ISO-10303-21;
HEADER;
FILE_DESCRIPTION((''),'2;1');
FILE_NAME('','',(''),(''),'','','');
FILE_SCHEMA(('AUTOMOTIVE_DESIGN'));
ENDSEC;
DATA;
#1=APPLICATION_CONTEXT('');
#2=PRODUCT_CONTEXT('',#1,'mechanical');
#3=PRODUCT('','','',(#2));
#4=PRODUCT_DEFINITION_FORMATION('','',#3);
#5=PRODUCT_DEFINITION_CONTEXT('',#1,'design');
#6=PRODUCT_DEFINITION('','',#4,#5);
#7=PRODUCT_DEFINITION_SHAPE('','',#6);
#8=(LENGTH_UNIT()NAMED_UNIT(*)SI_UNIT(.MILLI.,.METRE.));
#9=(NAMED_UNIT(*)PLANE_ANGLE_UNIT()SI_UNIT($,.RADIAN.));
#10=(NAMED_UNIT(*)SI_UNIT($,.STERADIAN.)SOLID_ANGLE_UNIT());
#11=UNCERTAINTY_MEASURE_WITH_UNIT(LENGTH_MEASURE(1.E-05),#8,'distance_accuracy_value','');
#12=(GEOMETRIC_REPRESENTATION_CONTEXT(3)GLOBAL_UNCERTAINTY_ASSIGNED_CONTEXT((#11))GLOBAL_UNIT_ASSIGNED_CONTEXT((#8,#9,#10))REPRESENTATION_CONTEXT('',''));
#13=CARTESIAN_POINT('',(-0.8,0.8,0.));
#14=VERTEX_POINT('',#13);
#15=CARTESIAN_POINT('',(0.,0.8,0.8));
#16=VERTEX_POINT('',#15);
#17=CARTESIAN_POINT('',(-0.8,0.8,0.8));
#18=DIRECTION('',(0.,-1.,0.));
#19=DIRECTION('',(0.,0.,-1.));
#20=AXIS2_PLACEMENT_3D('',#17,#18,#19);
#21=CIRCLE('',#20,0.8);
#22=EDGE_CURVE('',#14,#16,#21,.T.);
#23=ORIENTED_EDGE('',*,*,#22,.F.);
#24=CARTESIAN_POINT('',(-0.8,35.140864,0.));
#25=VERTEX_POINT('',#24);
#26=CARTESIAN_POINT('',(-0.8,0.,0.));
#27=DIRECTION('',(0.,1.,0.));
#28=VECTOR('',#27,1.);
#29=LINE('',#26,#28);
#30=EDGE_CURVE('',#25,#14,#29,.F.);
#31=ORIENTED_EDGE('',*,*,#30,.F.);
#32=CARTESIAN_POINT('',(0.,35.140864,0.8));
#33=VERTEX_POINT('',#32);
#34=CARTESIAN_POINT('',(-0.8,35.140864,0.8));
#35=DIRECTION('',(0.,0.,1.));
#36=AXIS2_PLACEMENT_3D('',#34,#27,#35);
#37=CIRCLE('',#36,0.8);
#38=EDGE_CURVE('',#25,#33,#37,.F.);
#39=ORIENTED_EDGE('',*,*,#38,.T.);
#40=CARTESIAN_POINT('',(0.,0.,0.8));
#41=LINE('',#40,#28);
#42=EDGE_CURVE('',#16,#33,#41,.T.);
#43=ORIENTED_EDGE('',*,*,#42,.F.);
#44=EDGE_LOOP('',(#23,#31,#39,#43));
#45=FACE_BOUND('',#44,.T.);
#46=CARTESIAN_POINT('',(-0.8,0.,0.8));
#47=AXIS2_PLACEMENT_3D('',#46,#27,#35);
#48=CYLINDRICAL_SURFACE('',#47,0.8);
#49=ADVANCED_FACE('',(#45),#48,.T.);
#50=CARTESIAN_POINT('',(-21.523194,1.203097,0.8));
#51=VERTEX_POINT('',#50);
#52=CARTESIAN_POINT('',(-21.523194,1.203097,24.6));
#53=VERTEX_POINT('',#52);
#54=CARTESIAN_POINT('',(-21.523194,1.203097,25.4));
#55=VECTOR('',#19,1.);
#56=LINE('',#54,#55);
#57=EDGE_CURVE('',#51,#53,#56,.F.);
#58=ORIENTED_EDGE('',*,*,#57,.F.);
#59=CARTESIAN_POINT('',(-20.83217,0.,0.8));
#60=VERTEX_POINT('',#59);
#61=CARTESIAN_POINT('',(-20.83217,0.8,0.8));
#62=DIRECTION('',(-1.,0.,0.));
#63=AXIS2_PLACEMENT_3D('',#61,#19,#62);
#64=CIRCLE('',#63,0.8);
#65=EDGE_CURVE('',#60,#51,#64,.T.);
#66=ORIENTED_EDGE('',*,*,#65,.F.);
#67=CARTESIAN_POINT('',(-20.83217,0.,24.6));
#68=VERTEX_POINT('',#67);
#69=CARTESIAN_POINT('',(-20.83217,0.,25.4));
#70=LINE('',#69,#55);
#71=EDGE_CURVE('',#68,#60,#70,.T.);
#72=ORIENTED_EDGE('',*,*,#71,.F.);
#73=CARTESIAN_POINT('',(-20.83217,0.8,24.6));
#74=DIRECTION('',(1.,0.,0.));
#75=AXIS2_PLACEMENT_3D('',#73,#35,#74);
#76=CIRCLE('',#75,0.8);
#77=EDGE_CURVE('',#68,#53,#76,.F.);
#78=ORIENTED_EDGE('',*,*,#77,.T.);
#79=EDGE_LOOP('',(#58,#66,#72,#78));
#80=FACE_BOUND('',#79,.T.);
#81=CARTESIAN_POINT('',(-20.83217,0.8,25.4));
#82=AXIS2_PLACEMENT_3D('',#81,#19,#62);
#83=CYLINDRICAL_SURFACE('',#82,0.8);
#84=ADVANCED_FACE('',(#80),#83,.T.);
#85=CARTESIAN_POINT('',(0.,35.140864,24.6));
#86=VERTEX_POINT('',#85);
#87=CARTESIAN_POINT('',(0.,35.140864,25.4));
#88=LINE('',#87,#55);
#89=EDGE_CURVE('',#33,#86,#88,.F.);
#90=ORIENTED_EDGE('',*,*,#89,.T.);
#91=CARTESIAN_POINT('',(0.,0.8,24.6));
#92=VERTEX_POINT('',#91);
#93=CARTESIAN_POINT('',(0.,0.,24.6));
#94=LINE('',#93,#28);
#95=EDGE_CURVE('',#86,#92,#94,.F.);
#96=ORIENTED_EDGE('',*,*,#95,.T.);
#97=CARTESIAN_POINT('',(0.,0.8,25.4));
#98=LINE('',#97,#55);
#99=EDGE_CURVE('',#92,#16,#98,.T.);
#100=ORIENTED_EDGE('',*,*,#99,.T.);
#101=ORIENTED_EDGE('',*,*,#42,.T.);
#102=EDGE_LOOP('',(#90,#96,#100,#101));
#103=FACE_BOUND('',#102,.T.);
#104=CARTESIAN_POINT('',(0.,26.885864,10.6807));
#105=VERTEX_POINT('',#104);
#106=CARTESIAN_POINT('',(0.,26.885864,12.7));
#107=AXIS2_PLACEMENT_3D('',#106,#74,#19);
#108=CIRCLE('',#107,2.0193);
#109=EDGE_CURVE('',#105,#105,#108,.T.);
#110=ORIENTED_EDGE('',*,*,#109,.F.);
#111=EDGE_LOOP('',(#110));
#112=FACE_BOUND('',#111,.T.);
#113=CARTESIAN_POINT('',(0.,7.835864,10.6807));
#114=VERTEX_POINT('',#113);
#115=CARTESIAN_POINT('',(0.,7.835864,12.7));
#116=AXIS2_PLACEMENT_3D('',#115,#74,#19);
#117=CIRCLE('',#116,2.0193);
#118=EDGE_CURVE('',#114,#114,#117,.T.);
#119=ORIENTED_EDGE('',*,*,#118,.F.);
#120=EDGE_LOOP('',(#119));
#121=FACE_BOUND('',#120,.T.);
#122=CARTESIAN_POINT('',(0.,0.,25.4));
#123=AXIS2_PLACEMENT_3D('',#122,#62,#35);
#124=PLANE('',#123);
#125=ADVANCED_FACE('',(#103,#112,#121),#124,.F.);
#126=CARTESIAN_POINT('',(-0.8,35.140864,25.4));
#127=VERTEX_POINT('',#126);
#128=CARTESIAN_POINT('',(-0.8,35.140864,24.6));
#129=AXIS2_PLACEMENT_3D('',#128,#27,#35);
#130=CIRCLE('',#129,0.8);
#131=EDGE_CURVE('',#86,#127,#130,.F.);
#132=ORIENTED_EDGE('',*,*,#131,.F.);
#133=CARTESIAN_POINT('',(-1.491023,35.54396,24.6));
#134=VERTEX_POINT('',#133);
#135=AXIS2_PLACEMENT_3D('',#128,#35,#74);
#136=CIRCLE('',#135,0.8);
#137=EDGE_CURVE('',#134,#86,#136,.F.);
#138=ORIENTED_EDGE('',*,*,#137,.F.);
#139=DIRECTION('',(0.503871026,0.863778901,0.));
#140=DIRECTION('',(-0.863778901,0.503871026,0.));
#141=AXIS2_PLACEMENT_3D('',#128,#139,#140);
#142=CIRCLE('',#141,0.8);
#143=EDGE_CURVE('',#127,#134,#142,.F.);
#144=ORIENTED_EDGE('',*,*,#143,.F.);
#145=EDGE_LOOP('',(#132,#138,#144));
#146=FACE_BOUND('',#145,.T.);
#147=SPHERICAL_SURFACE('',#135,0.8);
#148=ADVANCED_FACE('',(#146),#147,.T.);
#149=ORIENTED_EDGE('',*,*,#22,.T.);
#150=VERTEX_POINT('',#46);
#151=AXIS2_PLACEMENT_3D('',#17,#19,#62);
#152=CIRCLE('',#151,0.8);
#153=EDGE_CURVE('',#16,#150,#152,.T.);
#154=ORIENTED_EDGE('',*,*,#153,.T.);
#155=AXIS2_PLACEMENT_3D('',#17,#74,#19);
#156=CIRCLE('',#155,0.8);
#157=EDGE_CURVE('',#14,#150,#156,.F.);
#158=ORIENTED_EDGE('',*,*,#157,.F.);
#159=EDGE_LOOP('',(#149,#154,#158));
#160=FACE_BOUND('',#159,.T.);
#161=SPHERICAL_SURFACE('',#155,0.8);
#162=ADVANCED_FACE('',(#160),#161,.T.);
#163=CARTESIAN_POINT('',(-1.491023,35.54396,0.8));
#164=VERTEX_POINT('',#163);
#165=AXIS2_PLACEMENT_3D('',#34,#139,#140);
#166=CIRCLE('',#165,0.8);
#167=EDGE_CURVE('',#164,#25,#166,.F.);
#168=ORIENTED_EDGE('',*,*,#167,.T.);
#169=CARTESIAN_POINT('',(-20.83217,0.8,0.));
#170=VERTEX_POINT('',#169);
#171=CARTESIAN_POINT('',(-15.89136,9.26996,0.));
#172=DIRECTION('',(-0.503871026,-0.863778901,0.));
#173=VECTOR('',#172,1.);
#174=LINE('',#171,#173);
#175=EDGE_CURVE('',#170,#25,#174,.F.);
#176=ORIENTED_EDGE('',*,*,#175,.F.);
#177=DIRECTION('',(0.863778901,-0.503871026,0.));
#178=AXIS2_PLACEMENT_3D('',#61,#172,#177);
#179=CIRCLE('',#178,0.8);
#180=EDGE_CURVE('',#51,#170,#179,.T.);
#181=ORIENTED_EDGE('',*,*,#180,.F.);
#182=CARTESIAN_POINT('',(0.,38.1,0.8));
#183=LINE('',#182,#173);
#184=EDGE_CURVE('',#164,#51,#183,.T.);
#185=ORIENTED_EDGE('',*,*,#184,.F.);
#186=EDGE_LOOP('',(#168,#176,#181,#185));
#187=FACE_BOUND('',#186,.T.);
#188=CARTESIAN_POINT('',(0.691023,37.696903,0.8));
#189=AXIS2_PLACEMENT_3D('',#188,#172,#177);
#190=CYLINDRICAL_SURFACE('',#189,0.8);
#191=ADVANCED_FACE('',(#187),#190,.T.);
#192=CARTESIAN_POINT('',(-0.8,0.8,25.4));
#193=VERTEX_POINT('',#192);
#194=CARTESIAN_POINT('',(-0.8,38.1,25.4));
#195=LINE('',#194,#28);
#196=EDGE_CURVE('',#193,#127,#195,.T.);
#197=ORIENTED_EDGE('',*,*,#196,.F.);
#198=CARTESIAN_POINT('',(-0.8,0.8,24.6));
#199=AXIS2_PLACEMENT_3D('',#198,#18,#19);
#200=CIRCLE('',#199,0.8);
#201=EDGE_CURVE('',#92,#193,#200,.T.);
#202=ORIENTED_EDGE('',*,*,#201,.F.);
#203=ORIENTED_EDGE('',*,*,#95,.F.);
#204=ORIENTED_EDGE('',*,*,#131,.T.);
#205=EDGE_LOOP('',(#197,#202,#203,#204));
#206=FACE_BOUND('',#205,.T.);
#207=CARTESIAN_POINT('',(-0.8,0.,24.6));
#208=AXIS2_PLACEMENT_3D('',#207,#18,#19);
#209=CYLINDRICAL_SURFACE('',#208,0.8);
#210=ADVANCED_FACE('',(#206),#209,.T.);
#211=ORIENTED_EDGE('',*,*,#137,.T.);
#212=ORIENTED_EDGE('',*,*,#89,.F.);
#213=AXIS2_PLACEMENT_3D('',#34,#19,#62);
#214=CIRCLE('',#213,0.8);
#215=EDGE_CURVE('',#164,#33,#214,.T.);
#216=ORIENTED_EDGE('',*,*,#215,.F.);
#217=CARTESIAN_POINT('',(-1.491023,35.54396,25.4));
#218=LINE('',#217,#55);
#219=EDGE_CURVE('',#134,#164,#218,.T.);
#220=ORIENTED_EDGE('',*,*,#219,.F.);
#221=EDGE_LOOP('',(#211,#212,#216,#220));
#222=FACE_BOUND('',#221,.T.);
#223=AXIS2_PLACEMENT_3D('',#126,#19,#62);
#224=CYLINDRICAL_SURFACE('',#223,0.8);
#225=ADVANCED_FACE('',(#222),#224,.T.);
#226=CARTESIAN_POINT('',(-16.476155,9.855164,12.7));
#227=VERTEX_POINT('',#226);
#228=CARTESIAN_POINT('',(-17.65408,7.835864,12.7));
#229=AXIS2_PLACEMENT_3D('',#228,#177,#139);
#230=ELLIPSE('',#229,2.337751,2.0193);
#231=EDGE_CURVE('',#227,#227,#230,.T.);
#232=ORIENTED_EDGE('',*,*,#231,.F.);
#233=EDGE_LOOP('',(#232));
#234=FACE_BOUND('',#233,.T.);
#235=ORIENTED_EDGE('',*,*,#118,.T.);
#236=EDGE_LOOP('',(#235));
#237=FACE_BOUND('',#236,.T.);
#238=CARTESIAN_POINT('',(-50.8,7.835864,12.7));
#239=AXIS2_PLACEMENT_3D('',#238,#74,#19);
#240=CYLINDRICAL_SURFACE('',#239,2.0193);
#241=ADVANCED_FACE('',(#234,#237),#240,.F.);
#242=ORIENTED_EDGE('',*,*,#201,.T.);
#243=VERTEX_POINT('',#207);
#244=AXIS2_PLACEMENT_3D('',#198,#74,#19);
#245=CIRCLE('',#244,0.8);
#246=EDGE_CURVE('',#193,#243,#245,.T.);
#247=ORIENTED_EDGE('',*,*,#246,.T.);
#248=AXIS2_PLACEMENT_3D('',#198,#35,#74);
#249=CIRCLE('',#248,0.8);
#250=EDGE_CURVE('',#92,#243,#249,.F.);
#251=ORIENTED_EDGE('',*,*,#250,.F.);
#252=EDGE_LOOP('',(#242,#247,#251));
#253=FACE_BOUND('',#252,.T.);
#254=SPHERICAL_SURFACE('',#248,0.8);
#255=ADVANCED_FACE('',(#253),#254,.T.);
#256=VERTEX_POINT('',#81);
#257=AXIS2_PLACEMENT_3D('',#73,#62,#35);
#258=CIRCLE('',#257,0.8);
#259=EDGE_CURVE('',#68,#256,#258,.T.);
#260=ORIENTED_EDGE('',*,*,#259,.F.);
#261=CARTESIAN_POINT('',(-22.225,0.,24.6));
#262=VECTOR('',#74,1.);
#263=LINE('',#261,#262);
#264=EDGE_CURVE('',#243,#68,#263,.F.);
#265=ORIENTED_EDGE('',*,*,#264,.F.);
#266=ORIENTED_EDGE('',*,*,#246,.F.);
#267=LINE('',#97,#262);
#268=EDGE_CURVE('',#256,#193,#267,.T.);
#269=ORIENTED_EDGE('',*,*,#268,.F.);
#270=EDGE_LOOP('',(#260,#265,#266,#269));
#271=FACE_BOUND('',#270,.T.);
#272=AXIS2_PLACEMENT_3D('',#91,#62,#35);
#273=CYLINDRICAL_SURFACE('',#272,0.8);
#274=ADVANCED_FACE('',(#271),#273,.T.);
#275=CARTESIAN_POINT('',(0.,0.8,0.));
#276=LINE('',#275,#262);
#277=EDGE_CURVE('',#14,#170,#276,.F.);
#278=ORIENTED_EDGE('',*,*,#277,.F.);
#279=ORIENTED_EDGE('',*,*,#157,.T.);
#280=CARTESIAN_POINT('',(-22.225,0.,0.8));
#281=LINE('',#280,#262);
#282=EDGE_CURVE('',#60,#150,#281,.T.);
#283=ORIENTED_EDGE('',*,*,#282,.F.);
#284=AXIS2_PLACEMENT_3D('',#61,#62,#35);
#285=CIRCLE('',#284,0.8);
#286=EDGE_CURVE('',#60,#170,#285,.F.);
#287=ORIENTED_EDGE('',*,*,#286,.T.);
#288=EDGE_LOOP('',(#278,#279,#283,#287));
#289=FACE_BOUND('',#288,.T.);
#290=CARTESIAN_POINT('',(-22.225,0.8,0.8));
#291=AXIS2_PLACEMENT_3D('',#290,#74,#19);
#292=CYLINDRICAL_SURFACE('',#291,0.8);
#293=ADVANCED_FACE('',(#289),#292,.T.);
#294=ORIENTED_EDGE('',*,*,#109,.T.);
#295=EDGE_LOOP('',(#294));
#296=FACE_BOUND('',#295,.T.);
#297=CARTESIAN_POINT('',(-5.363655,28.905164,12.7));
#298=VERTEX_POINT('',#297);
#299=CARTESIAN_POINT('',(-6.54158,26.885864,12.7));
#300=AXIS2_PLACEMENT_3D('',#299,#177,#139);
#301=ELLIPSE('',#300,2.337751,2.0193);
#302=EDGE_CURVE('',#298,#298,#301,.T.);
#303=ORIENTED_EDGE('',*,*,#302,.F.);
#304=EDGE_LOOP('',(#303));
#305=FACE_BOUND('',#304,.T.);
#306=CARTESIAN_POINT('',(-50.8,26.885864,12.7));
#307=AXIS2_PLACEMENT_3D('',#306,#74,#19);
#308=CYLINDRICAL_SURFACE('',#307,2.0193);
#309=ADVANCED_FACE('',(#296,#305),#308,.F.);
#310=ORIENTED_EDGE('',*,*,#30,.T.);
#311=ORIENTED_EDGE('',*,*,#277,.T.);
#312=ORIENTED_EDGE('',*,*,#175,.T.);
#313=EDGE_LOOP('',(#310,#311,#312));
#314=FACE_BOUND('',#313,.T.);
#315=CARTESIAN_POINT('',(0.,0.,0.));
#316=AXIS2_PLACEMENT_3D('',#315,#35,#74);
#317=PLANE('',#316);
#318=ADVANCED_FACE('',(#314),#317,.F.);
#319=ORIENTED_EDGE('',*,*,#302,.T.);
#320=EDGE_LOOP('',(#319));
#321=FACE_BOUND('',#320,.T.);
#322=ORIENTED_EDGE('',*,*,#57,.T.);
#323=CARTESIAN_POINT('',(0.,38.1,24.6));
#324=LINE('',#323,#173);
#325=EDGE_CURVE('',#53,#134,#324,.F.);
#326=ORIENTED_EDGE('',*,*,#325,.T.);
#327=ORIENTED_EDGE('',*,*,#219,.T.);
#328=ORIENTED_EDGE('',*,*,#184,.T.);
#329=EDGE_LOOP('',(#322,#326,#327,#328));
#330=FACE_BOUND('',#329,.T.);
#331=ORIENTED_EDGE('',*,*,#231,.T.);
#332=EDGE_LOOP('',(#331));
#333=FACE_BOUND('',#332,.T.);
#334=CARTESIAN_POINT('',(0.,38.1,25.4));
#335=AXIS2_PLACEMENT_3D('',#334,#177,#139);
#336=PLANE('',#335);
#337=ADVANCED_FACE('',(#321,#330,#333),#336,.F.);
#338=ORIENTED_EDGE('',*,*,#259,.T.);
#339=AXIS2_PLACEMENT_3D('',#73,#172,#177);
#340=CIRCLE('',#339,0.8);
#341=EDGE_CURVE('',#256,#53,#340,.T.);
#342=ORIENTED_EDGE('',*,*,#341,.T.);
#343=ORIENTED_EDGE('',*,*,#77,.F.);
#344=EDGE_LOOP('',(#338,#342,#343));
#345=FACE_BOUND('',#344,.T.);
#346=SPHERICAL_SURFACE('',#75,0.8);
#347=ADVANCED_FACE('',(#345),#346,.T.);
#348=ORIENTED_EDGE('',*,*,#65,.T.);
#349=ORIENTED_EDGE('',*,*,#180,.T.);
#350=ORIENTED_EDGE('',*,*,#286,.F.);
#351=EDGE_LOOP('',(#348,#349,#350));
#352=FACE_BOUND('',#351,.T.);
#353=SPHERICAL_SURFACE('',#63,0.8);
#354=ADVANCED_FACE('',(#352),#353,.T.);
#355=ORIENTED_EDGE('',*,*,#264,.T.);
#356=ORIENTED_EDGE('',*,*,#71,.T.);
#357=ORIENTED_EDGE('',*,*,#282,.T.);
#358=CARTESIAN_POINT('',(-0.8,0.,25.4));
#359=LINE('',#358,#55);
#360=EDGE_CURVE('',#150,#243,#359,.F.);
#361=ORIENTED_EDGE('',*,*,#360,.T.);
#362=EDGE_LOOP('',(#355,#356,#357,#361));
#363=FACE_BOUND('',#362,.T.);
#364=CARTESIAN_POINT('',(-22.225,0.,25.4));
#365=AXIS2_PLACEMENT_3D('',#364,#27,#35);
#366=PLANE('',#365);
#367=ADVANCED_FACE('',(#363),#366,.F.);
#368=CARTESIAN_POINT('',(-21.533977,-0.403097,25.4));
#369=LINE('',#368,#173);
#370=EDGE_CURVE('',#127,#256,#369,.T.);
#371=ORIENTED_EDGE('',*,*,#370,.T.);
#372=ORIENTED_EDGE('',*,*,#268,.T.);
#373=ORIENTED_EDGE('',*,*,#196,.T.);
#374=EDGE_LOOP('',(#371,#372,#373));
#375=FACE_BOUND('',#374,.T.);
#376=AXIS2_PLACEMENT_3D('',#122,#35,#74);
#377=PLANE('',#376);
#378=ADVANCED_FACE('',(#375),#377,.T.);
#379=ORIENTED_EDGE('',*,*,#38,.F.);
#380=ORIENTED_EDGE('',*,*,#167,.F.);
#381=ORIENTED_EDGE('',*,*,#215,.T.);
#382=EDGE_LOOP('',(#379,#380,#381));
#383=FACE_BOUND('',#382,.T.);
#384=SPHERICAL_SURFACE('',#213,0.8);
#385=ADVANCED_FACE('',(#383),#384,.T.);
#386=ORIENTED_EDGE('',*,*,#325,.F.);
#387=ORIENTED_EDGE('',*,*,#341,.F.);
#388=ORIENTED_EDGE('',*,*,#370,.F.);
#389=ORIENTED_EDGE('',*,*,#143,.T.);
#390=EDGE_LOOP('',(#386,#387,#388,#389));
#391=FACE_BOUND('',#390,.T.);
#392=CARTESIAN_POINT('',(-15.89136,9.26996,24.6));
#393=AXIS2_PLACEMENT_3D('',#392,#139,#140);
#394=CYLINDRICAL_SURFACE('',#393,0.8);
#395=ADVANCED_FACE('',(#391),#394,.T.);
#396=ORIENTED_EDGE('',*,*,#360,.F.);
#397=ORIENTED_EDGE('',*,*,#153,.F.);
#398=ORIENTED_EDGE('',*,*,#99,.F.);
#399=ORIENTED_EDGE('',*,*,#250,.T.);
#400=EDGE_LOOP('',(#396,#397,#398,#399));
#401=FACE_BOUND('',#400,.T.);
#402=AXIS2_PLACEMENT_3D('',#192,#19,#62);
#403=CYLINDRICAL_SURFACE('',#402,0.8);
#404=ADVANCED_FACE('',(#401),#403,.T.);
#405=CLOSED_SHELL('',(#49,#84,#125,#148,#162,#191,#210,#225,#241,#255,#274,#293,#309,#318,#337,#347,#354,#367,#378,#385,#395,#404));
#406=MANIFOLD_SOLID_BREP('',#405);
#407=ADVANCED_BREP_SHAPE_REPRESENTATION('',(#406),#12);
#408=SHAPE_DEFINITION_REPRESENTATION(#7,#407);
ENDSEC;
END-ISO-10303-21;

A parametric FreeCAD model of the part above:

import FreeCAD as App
import Part
import Sketcher
Q = App.Units.Quantity

doc = App.newDocument("Part")
body = doc.addObject("PartDesign::Body", "Body")

# Sketch on XY plane
sketch1 = body.newObject("Sketcher::SketchObject", "Sketch")
sketch1.AttachmentSupport = (doc.getObject("XY_Plane"), [""])
sketch1.MapMode = "FlatFace"
sketch1.addGeometry(Part.LineSegment(App.Vector(0, 0, 0), App.Vector(0, 38, 0)), False)
sketch1.addGeometry(Part.LineSegment(App.Vector(0, 38, 0), App.Vector(-22, 0, 0)), False)
sketch1.addGeometry(Part.LineSegment(App.Vector(-22, 0, 0), App.Vector(0, 0, 0)), False)
sketch1.addConstraint(Sketcher.Constraint("Coincident", 0, 2, 1, 1))
sketch1.addConstraint(Sketcher.Constraint("Coincident", 1, 2, 2, 1))
sketch1.addConstraint(Sketcher.Constraint("Coincident", 2, 2, 0, 1))
sketch1.addConstraint(Sketcher.Constraint("Vertical", 0))
sketch1.addConstraint(Sketcher.Constraint("Horizontal", 2))
sketch1.addConstraint(Sketcher.Constraint("Coincident", 2, 2, -1, 1))
sketch1.addConstraint(Sketcher.Constraint("DistanceY", 0, 1, 0, 2, Q("1.5 in")))
sketch1.addConstraint(Sketcher.Constraint("DistanceX", 2, 1, 2, 2, Q("0.875 in")))
pad1 = body.newObject("PartDesign::Pad", "Pad")
pad1.Profile = sketch1
pad1.Length = Q("1 in")
doc.recompute()

fillet = body.newObject("PartDesign::Fillet", "Fillet")
fillet.Base = (pad1, ["Edge1"])
fillet.UseAllEdges = True
fillet.Radius = 0.8

# Sketch on YZ plane
sketch2 = body.newObject("Sketcher::SketchObject", "Sketch001")
sketch2.AttachmentSupport = (doc.getObject("YZ_Plane"), [""])
sketch2.MapMode = "FlatFace"
sketch2.addGeometry(Part.Circle(App.Vector(26.9, 12.7, 0), App.Vector(0, 0, 1), 2), False)
sketch2.addGeometry(Part.Circle(App.Vector(7.8, 12.7, 0), App.Vector(0, 0, 1), 2), False)
sketch2.addConstraint(Sketcher.Constraint("Equal", 0, 1))
sketch2.addConstraint(Sketcher.Constraint("Horizontal", 0, 3, 1, 3))
sketch2.addConstraint(Sketcher.Constraint("Diameter", 0, Q("0.159 in")))
sketch2.addConstraint(Sketcher.Constraint("DistanceY", -1, 1, 0, 3, Q("0.5 in")))
sketch2.addConstraint(Sketcher.Constraint("DistanceX", 1, 3, 0, 3, Q("0.75 in")))
sketch2.addConstraint(Sketcher.Constraint("DistanceX", -1, 1, 0, 3, 26.885864))
pocket1 = body.newObject("PartDesign::Pocket", "Pocket")
pocket1.Profile = sketch2
pocket1.Length = Q("2 in")

doc.recompute()
